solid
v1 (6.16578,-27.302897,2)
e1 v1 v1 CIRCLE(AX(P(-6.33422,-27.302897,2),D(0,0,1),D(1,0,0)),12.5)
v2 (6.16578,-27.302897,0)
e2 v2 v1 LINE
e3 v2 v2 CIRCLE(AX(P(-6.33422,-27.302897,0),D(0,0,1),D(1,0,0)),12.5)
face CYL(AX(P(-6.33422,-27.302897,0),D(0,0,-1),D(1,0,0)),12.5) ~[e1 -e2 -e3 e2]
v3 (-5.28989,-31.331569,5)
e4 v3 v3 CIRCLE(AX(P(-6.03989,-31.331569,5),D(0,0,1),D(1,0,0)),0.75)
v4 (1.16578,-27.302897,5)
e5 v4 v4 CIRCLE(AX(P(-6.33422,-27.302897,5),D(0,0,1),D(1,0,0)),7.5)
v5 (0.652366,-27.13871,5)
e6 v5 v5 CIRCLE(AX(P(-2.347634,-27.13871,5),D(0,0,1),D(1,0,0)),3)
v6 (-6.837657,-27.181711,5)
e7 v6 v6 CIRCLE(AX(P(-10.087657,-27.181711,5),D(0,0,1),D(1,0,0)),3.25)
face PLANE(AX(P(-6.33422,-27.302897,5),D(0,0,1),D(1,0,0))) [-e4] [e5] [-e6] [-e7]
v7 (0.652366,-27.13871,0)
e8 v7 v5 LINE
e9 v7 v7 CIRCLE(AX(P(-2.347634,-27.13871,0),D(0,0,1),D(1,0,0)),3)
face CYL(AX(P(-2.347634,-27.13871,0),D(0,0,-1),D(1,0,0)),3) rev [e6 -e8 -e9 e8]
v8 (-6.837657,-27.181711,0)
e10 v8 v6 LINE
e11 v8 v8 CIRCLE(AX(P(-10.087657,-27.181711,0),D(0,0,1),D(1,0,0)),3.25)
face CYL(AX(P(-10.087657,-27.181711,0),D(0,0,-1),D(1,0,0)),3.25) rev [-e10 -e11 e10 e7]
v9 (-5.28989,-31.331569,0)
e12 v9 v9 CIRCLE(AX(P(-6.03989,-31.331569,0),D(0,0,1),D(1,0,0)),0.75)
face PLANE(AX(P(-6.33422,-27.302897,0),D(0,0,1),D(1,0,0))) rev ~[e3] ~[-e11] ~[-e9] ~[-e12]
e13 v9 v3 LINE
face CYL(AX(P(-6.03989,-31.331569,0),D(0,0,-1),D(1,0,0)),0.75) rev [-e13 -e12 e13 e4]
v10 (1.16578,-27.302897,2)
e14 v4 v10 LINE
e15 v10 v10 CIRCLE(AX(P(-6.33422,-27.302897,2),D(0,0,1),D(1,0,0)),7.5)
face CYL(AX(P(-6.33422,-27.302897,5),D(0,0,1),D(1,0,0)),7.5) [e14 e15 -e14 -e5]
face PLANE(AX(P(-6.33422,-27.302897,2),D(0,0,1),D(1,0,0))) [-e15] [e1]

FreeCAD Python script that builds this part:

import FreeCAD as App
import Part
import Sketcher
from FreeCAD import Vector

doc = App.newDocument("Part")
body = doc.addObject("PartDesign::Body", "Body")

# Sketch on XY plane
sketch1 = body.newObject("Sketcher::SketchObject", "Sketch")
sketch1.AttachmentSupport = (doc.getObject("XY_Plane"), [""])
sketch1.MapMode = "FlatFace"
sketch1.addGeometry([
    Part.Circle(Vector(-6.33422, -27.302897, 0), Vector(0, 0, 1), 12.5),
    Part.Circle(Vector(-6.03989, -31.331569, 0), Vector(0, 0, 1), 0.75),
    Part.Circle(Vector(-10.087657, -27.181711, 0), Vector(0, 0, 1), 3.25),
    Part.Circle(Vector(-2.347634, -27.13871, 0), Vector(0, 0, 1), 3),
], False)
sketch1.addConstraint([
    Sketcher.Constraint("Diameter", 0, 25.0),
    Sketcher.Constraint("Diameter", 3, 6.0),
    Sketcher.Constraint("Diameter", 1, 1.5),
    Sketcher.Constraint("Diameter", 2, 6.5),
    Sketcher.Constraint("DistanceY", 2, 3, 3, 3, 0.043001),
    Sketcher.Constraint("DistanceX", 0, 3, -1, 1, 6.33422),
    Sketcher.Constraint("DistanceX", 1, 3, -1, 1, 6.03989),
    Sketcher.Constraint("DistanceY", 1, 3, -1, 1, 31.331569),
    Sketcher.Constraint("DistanceY", 2, 3, -1, 1, 27.181711),
    Sketcher.Constraint("DistanceY", 1, 3, 0, 3, 4.028672),
    Sketcher.Constraint("DistanceX", 2, 3, -1, 1, 10.087657),
    Sketcher.Constraint("DistanceX", 3, 3, -1, 1, 2.347634),
])
pad1 = body.newObject("PartDesign::Pad", "Pad")
pad1.Profile = sketch1
pad1.Length = 5

# Sketch on XY plane
sketch2 = body.newObject("Sketcher::SketchObject", "Sketch001")
sketch2.AttachmentSupport = (doc.getObject("XY_Plane"), [""])
sketch2.MapMode = "FlatFace"
sketch2.AttachmentOffset = App.Placement(Vector(0, 0, 5), App.Rotation())
sketch2.addGeometry([
    Part.Circle(Vector(-6.33422, -27.302897, 0), Vector(0, 0, 1), 12.5),
    Part.Circle(Vector(-6.33422, -27.302897, 0), Vector(0, 0, 1), 7.5),
], False)
sketch2.addConstraint([
    Sketcher.Constraint("Coincident", 1, 3, 0, 3),
    Sketcher.Constraint("Diameter", 0, 25.0),
    Sketcher.Constraint("Diameter", 1, 15.0),
    Sketcher.Constraint("DistanceX", 0, 3, -1, 1, 6.33422),
    Sketcher.Constraint("DistanceY", 0, 3, -1, 1, 27.302897),
])
pocket1 = body.newObject("PartDesign::Pocket", "Pocket")
pocket1.Profile = sketch2
pocket1.Length = 3

doc.recompute()
